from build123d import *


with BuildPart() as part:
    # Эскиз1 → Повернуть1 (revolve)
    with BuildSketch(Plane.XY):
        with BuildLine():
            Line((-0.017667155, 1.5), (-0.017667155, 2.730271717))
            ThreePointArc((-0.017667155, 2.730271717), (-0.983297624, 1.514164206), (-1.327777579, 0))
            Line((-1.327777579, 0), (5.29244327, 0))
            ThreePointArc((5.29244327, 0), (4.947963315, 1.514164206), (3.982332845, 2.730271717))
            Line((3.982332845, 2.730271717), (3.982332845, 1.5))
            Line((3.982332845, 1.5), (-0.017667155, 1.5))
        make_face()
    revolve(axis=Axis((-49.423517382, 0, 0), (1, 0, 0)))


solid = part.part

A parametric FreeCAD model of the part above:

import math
import FreeCAD as App
import Part
import Sketcher

doc = App.newDocument("Part")
body = doc.addObject("PartDesign::Body", "Body")

# Sketch on XY plane
sketch1 = doc.addObject("Sketcher::SketchObject", "Sketch")
body.addObject(sketch1)
sketch1.AttachmentSupport = (doc.XY_Plane, [""])
sketch1.MapMode = "FlatFace"
sketch1.addGeometry(Part.LineSegment(App.Vector(0, 1.5, 0), App.Vector(0, 2.7, 0)), False)
sketch1.addGeometry(Part.ArcOfCircle(Part.Circle(App.Vector(2.2, 0, 0), App.Vector(0, 0, 1), 3.5), math.radians(129), math.radians(180)), False)
sketch1.addGeometry(Part.LineSegment(App.Vector(-1.3, 0, 0), App.Vector(5.3, 0, 0)), False)
sketch1.addGeometry(Part.ArcOfCircle(Part.Circle(App.Vector(1.8, 0, 0), App.Vector(0, 0, 1), 3.5), math.radians(0), math.radians(51)), False)
sketch1.addGeometry(Part.LineSegment(App.Vector(4, 2.7, 0), App.Vector(4, 1.5, 0)), False)
sketch1.addGeometry(Part.LineSegment(App.Vector(4, 1.5, 0), App.Vector(0, 1.5, 0)), False)
sketch1.addConstraint(Sketcher.Constraint("Coincident", 0, 2, 1, 1))
sketch1.addConstraint(Sketcher.Constraint("Coincident", 1, 2, 2, 1))
sketch1.addConstraint(Sketcher.Constraint("Coincident", 2, 2, 3, 1))
sketch1.addConstraint(Sketcher.Constraint("Coincident", 3, 2, 4, 1))
sketch1.addConstraint(Sketcher.Constraint("Coincident", 4, 2, 5, 1))
sketch1.addConstraint(Sketcher.Constraint("Coincident", 5, 2, 0, 1))
sketch1.addConstraint(Sketcher.Constraint("Vertical", 0))
sketch1.addConstraint(Sketcher.Constraint("Horizontal", 2))
sketch1.addConstraint(Sketcher.Constraint("Vertical", 4))
sketch1.addConstraint(Sketcher.Constraint("Horizontal", 5))
sketch1.addConstraint(Sketcher.Constraint("Equal", 1, 3))
sketch1.addConstraint(Sketcher.Constraint("PointOnObject", 1, 3, -1))
sketch1.addConstraint(Sketcher.Constraint("PointOnObject", 3, 3, -1))
sketch1.addConstraint(Sketcher.Constraint("PointOnObject", 1, 2, -1))
sketch1.addConstraint(Sketcher.Constraint("Horizontal", 0, 2, 3, 2))
sketch1.addConstraint(Sketcher.Constraint("Radius", 1, 3.5))
sketch1.addConstraint(Sketcher.Constraint("DistanceX", 5, 2, 5, 1, 4.0))
sketch1.addConstraint(Sketcher.Constraint("DistanceY", -1, 1, 4, 2, 1.5))
sketch1.addConstraint(Sketcher.Constraint("DistanceX", 2, 1, 2, 2, 6.620221))
sketch1.addConstraint(Sketcher.Constraint("DistanceX", -1, 1, 1, 3, 2.172222))
revolution = doc.addObject("PartDesign::Revolution", "Revolution")
body.addObject(revolution)
revolution.Profile = sketch1
revolution.ReferenceAxis = (sketch1, ["H_Axis"])
revolution.Angle = 360

doc.recompute()
